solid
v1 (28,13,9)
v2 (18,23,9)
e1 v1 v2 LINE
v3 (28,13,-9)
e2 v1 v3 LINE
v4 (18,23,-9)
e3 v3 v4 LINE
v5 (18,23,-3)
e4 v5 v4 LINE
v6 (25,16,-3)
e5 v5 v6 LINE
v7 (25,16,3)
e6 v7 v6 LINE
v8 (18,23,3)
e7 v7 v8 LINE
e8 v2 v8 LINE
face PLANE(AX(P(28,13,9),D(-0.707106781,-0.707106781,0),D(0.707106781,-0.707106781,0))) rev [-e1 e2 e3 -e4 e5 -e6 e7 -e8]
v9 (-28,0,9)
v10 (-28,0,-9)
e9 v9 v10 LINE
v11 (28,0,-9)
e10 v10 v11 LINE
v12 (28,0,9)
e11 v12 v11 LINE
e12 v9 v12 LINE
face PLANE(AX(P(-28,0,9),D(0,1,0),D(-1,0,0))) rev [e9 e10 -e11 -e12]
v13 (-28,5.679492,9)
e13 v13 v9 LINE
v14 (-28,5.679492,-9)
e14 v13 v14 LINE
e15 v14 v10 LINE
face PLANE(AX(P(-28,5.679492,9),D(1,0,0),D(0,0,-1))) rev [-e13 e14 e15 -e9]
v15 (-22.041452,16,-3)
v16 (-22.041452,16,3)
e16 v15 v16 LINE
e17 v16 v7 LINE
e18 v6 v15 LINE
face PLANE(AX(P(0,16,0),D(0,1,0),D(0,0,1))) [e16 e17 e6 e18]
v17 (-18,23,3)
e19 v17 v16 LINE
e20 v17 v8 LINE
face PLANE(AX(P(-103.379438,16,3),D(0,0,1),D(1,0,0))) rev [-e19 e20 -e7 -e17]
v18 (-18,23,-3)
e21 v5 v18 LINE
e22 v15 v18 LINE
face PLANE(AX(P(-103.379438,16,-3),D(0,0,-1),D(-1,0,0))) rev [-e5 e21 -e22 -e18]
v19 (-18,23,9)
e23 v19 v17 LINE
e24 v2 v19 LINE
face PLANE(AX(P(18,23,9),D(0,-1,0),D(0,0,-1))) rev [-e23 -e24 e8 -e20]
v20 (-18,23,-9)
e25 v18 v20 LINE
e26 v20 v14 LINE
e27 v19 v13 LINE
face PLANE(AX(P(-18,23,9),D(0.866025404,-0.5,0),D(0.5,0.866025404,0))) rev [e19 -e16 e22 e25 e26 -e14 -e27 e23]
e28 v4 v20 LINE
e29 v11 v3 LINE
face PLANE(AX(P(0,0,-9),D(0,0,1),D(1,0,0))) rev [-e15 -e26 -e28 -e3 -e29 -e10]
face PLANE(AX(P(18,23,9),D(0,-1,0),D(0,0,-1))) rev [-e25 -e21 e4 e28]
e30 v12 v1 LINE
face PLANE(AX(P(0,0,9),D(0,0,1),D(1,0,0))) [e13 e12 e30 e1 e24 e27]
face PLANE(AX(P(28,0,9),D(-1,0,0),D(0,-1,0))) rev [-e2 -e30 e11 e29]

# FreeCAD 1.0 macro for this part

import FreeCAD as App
import Part
import Sketcher

V = App.Vector
Q = App.Units.Quantity

doc = App.newDocument("Part")
params = doc.addObject("Spreadsheet::Sheet", "Params")
for row, (alias, value) in enumerate([
    ("sketch1_width", "56 mm"),
    ("sketch1_width2", "36 mm"),
    ("sketch1_height", "13 mm"),
    ("sketch1_length", "20 mm"),
    ("pad1_length", "18 mm"),
    ("sketch2_height", "6 mm"),
    ("pocket1_length", "7 mm"),
], start=1):
    params.set(f"A{row}", alias)
    params.set(f"B{row}", "=" + value)
    params.setAlias(f"B{row}", alias)

body = doc.addObject("PartDesign::Body", "Body")

sketch1 = body.newObject("Sketcher::SketchObject", "Sketch")
sketch1.AttachmentSupport = (doc.getObject("XY_Plane"), [""])
sketch1.MapMode = "FlatFace"
sketch1.addGeometry(Part.LineSegment(V(-28, 0, 0), V(28, 0, 0)), False)
sketch1.addGeometry(Part.LineSegment(V(28, 0, 0), V(28, 13, 0)), False)
sketch1.addGeometry(Part.LineSegment(V(28, 13, 0), V(18, 23, 0)), False)
sketch1.addGeometry(Part.LineSegment(V(18, 23, 0), V(-18, 23, 0)), False)
sketch1.addGeometry(Part.LineSegment(V(-18, 23, 0), V(-28, 6, 0)), False)
sketch1.addGeometry(Part.LineSegment(V(-28, 6, 0), V(-28, 0, 0)), False)
sketch1.addConstraint(Sketcher.Constraint("Coincident", 0, 2, 1, 1))
sketch1.addConstraint(Sketcher.Constraint("Coincident", 1, 2, 2, 1))
sketch1.addConstraint(Sketcher.Constraint("Coincident", 2, 2, 3, 1))
sketch1.addConstraint(Sketcher.Constraint("Coincident", 3, 2, 4, 1))
sketch1.addConstraint(Sketcher.Constraint("Coincident", 4, 2, 5, 1))
sketch1.addConstraint(Sketcher.Constraint("Coincident", 5, 2, 0, 1))
sketch1.addConstraint(Sketcher.Constraint("Horizontal", 0))
sketch1.addConstraint(Sketcher.Constraint("Vertical", 1))
sketch1.addConstraint(Sketcher.Constraint("Horizontal", 3))
sketch1.addConstraint(Sketcher.Constraint("Vertical", 5))
sketch1.addConstraint(Sketcher.Constraint("Symmetric", 0, 2, 5, 2, -1, 1))
sketch1.addConstraint(Sketcher.Constraint("DistanceX", 0, 1, 0, 2, Q("56 mm")))
sketch1.addConstraint(Sketcher.Constraint("DistanceX", 3, 2, 3, 1, Q("36 mm")))
sketch1.addConstraint(Sketcher.Constraint("DistanceY", 1, 1, 1, 2, Q("13 mm")))
sketch1.addConstraint(Sketcher.Constraint("Angle", 2, Q("135 deg")))
sketch1.addConstraint(Sketcher.Constraint("Angle", 4, Q("-120 deg")))
sketch1.addConstraint(Sketcher.Constraint("Distance", 4, Q("20 mm")))
sketch1.setExpression("Constraints[11]", "Params.sketch1_width")
sketch1.setExpression("Constraints[12]", "Params.sketch1_width2")
sketch1.setExpression("Constraints[13]", "Params.sketch1_height")
sketch1.setExpression("Constraints[16]", "Params.sketch1_length")
pad1 = body.newObject("PartDesign::Pad", "Pad")
pad1.Profile = sketch1
pad1.setExpression("Length", "Params.pad1_length")
pad1.Midplane = True

sketch2 = body.newObject("Sketcher::SketchObject", "Sketch001")
sketch2.AttachmentSupport = (doc.getObject("XZ_Plane"), [""])
sketch2.MapMode = "FlatFace"
sketch2.AttachmentOffset = App.Placement(V(0, 0, -23), App.Rotation())
sketch2.addGeometry(Part.LineSegment(V(-103, -3, 0), V(-103, 3, 0)), False)
sketch2.addGeometry(Part.LineSegment(V(-103, 3, 0), V(103, 3, 0)), False)
sketch2.addGeometry(Part.LineSegment(V(103, 3, 0), V(103, -3, 0)), False)
sketch2.addGeometry(Part.LineSegment(V(103, -3, 0), V(-103, -3, 0)), False)
sketch2.addConstraint(Sketcher.Constraint("Coincident", 0, 2, 1, 1))
sketch2.addConstraint(Sketcher.Constraint("Coincident", 1, 2, 2, 1))
sketch2.addConstraint(Sketcher.Constraint("Coincident", 2, 2, 3, 1))
sketch2.addConstraint(Sketcher.Constraint("Coincident", 3, 2, 0, 1))
sketch2.addConstraint(Sketcher.Constraint("Vertical", 0))
sketch2.addConstraint(Sketcher.Constraint("Horizontal", 1))
sketch2.addConstraint(Sketcher.Constraint("Vertical", 2))
sketch2.addConstraint(Sketcher.Constraint("Horizontal", 3))
sketch2.addConstraint(Sketcher.Constraint("Symmetric", 0, 2, 2, 2, -1, 1))
sketch2.addConstraint(Sketcher.Constraint("DistanceY", 0, 1, 0, 2, Q("6 mm")))
sketch2.addConstraint(Sketcher.Constraint("DistanceX", 1, 1, 1, 2, Q("206.758877 mm")))
sketch2.setExpression("Constraints[9]", "Params.sketch2_height")
pocket1 = body.newObject("PartDesign::Pocket", "Pocket")
pocket1.Profile = sketch2
pocket1.setExpression("Length", "Params.pocket1_length")
pocket1.Reversed = True

doc.recompute()
